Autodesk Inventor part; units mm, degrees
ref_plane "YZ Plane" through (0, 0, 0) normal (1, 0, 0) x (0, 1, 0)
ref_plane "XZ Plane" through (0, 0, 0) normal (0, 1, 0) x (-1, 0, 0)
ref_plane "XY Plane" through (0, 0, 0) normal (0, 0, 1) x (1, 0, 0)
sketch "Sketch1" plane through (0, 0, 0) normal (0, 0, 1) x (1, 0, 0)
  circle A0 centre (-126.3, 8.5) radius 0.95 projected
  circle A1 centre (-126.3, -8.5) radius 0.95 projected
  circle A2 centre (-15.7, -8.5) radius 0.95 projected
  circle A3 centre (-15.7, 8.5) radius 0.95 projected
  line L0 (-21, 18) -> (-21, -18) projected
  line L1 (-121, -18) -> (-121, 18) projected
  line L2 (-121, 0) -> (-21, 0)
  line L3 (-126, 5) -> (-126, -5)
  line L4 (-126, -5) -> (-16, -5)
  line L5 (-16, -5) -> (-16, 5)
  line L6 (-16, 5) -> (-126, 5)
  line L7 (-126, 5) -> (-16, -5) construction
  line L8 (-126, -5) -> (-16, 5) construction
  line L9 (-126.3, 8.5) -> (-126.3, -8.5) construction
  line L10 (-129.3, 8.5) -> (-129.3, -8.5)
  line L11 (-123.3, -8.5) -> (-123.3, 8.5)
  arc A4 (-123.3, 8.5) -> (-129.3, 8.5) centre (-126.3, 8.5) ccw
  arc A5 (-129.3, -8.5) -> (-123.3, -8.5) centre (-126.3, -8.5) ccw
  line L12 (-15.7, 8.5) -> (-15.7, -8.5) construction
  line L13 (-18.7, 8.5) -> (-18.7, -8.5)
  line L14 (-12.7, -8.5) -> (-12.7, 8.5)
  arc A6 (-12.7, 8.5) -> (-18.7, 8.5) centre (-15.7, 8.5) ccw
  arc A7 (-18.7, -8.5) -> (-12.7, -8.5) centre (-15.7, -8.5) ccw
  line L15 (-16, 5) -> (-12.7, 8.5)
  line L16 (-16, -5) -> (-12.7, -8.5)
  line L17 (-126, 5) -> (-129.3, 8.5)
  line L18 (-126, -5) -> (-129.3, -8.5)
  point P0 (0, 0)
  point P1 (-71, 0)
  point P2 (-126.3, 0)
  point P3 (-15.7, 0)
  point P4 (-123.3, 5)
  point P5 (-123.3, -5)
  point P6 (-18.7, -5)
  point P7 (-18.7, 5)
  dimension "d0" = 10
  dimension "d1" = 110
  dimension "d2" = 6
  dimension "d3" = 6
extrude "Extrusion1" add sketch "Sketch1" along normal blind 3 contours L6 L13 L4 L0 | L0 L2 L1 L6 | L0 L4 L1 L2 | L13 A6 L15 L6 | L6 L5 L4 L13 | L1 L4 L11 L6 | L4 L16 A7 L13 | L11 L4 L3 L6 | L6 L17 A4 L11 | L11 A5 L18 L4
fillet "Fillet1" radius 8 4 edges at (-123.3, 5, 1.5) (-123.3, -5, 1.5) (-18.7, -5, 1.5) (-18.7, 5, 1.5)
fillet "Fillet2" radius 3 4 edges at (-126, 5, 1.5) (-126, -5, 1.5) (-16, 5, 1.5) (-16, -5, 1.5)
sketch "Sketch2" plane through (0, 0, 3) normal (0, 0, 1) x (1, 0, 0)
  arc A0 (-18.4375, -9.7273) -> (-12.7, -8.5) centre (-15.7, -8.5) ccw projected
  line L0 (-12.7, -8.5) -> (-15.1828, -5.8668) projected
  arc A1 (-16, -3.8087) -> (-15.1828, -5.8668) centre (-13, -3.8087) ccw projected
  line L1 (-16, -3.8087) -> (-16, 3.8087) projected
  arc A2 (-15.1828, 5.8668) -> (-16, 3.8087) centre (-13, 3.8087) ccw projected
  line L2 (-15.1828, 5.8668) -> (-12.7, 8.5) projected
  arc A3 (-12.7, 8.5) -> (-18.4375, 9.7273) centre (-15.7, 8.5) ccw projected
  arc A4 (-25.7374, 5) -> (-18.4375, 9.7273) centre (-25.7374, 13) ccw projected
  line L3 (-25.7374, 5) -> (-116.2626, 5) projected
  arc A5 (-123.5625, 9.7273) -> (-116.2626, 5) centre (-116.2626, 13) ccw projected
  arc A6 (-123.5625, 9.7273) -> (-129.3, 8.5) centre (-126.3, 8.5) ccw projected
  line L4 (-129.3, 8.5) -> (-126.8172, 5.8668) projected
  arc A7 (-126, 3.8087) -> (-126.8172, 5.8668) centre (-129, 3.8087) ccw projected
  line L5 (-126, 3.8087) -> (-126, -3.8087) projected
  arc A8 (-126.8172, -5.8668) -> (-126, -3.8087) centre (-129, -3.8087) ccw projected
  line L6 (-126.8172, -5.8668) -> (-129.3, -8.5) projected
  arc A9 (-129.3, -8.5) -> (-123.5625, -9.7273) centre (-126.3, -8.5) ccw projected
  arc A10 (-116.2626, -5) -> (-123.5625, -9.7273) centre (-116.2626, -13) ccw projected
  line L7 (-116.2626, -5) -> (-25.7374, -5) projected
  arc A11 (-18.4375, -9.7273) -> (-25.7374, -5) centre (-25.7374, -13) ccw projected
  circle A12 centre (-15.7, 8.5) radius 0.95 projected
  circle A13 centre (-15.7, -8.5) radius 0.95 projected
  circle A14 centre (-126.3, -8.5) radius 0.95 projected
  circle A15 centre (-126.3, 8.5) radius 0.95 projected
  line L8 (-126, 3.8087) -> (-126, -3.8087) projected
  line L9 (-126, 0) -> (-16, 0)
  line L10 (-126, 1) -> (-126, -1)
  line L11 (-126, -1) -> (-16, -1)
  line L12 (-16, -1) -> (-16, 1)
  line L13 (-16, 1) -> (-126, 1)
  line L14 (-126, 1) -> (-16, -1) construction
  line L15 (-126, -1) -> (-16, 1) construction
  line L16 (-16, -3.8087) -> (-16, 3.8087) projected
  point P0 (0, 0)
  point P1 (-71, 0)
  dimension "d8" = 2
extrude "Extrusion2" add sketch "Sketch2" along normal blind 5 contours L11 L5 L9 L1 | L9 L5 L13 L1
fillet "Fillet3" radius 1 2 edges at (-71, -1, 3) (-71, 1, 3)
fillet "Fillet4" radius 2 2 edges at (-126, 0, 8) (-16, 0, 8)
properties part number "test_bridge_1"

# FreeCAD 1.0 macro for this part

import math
import FreeCAD as App
import Part
import Sketcher

V = App.Vector
Q = App.Units.Quantity


def edges_at(feature, points):
    """Names of the edges that pass closest to the given points."""
    edges = feature.Shape.Edges
    near = lambda p: min(range(len(edges)), key=lambda i: edges[i].distToShape(Part.Vertex(*p))[0])
    return sorted({f"Edge{near(p) + 1}" for p in points})


def add_polygon(sketch, points):
    """Adds a closed chain of lines whose ends are joined by coincident constraints."""
    first, n = sketch.GeometryCount, len(points)
    for a, b in zip(points, points[1:] + points[:1]):
        sketch.addGeometry(Part.LineSegment(App.Vector(*a, 0), App.Vector(*b, 0)), False)
    for i in range(n):
        sketch.addConstraint(Sketcher.Constraint("Coincident", first + i, 2, first + (i + 1) % n, 1))

doc = App.newDocument("Part")
params = doc.addObject("Spreadsheet::Sheet", "Params")
for row, (alias, value) in enumerate([
    ("sketch1_radius", "3 mm"),
    ("sketch1_height", "10 mm"),
    ("sketch1_diameter", "1.9 mm"),
    ("sketch1_width", "104.6 mm"),
    ("sketch1_height2", "3.5 mm"),
    ("pad1_length", "3 mm"),
    ("fillet_radius", "8 mm"),
    ("fillet2_radius", "3 mm"),
    ("sketch2_height", "2 mm"),
    ("sketch2_width", "110 mm"),
    ("pad2_length", "5 mm"),
    ("fillet3_radius", "1 mm"),
    ("fillet4_radius", "2 mm"),
], start=1):
    params.set(f"A{row}", alias)
    params.set(f"B{row}", "=" + value)
    params.setAlias(f"B{row}", alias)

body = doc.addObject("PartDesign::Body", "Body")

sketch1 = body.newObject("Sketcher::SketchObject", "Sketch")
sketch1.AttachmentSupport = (doc.getObject("XY_Plane"), [""])
sketch1.MapMode = "FlatFace"
sketch1.addGeometry(Part.LineSegment(V(-18.7, 5, 0), V(-123.3, 5, 0)), False)
sketch1.addGeometry(Part.LineSegment(V(-123.3, 5, 0), V(-123.3, 8.5, 0)), False)
sketch1.addGeometry(Part.ArcOfCircle(Part.Circle(V(-126.3, 8.5, 0), V(0, 0, 1), 3), math.radians(0), math.radians(180)), False)
sketch1.addGeometry(Part.LineSegment(V(-129.3, 8.5, 0), V(-126, 5, 0)), False)
sketch1.addGeometry(Part.LineSegment(V(-126, 5, 0), V(-126, -5, 0)), False)
sketch1.addGeometry(Part.LineSegment(V(-126, -5, 0), V(-129.3, -8.5, 0)), False)
sketch1.addGeometry(Part.ArcOfCircle(Part.Circle(V(-126.3, -8.5, 0), V(0, 0, 1), 3), math.radians(180), math.radians(360)), False)
sketch1.addGeometry(Part.LineSegment(V(-123.3, -8.5, 0), V(-123.3, -5, 0)), False)
sketch1.addGeometry(Part.LineSegment(V(-123.3, -5, 0), V(-18.7, -5, 0)), False)
sketch1.addGeometry(Part.LineSegment(V(-18.7, -5, 0), V(-18.7, -8.5, 0)), False)
sketch1.addGeometry(Part.ArcOfCircle(Part.Circle(V(-15.7, -8.5, 0), V(0, 0, 1), 3), math.radians(180), math.radians(360)), False)
sketch1.addGeometry(Part.LineSegment(V(-12.7, -8.5, 0), V(-16, -5, 0)), False)
sketch1.addGeometry(Part.LineSegment(V(-16, -5, 0), V(-16, 5, 0)), False)
sketch1.addGeometry(Part.LineSegment(V(-16, 5, 0), V(-12.7, 8.5, 0)), False)
sketch1.addGeometry(Part.ArcOfCircle(Part.Circle(V(-15.7, 8.5, 0), V(0, 0, 1), 3), math.radians(0), math.radians(180)), False)
sketch1.addGeometry(Part.LineSegment(V(-18.7, 8.5, 0), V(-18.7, 5, 0)), False)
sketch1.addGeometry(Part.Circle(V(-15.7, 8.5, 0), V(0, 0, 1), 0.9), False)
sketch1.addGeometry(Part.Circle(V(-15.7, -8.5, 0), V(0, 0, 1), 0.9), False)
sketch1.addGeometry(Part.Circle(V(-126.3, 8.5, 0), V(0, 0, 1), 0.9), False)
sketch1.addGeometry(Part.Circle(V(-126.3, -8.5, 0), V(0, 0, 1), 0.9), False)
sketch1.addConstraint(Sketcher.Constraint("Coincident", 0, 2, 1, 1))
sketch1.addConstraint(Sketcher.Constraint("Tangent", 1, 2, 2, 1))
sketch1.addConstraint(Sketcher.Constraint("Coincident", 2, 2, 3, 1))
sketch1.addConstraint(Sketcher.Constraint("Coincident", 3, 2, 4, 1))
sketch1.addConstraint(Sketcher.Constraint("Coincident", 4, 2, 5, 1))
sketch1.addConstraint(Sketcher.Constraint("Coincident", 5, 2, 6, 1))
sketch1.addConstraint(Sketcher.Constraint("Tangent", 6, 2, 7, 1))
sketch1.addConstraint(Sketcher.Constraint("Coincident", 7, 2, 8, 1))
sketch1.addConstraint(Sketcher.Constraint("Coincident", 8, 2, 9, 1))
sketch1.addConstraint(Sketcher.Constraint("Tangent", 9, 2, 10, 1))
sketch1.addConstraint(Sketcher.Constraint("Coincident", 10, 2, 11, 1))
sketch1.addConstraint(Sketcher.Constraint("Coincident", 11, 2, 12, 1))
sketch1.addConstraint(Sketcher.Constraint("Coincident", 12, 2, 13, 1))
sketch1.addConstraint(Sketcher.Constraint("Coincident", 13, 2, 14, 1))
sketch1.addConstraint(Sketcher.Constraint("Tangent", 14, 2, 15, 1))
sketch1.addConstraint(Sketcher.Constraint("Coincident", 15, 2, 0, 1))
sketch1.addConstraint(Sketcher.Constraint("Horizontal", 0))
sketch1.addConstraint(Sketcher.Constraint("Vertical", 1))
sketch1.addConstraint(Sketcher.Constraint("Vertical", 4))
sketch1.addConstraint(Sketcher.Constraint("Vertical", 7))
sketch1.addConstraint(Sketcher.Constraint("Horizontal", 8))
sketch1.addConstraint(Sketcher.Constraint("Vertical", 9))
sketch1.addConstraint(Sketcher.Constraint("Vertical", 12))
sketch1.addConstraint(Sketcher.Constraint("Vertical", 15))
sketch1.addConstraint(Sketcher.Constraint("Coincident", 16, 3, 14, 3))
sketch1.addConstraint(Sketcher.Constraint("Coincident", 17, 3, 10, 3))
sketch1.addConstraint(Sketcher.Constraint("Coincident", 18, 3, 2, 3))
sketch1.addConstraint(Sketcher.Constraint("Coincident", 19, 3, 6, 3))
sketch1.addConstraint(Sketcher.Constraint("Equal", 2, 6))
sketch1.addConstraint(Sketcher.Constraint("Equal", 6, 10))
sketch1.addConstraint(Sketcher.Constraint("Equal", 10, 14))
sketch1.addConstraint(Sketcher.Constraint("Equal", 16, 17))
sketch1.addConstraint(Sketcher.Constraint("Equal", 17, 18))
sketch1.addConstraint(Sketcher.Constraint("Equal", 18, 19))
sketch1.addConstraint(Sketcher.Constraint("Symmetric", 2, 3, 6, 3, -1))
sketch1.addConstraint(Sketcher.Constraint("Symmetric", 10, 3, 14, 3, -1))
sketch1.addConstraint(Sketcher.Constraint("Parallel", 3, 11))
sketch1.addConstraint(Sketcher.Constraint("Parallel", 5, 13))
sketch1.addConstraint(Sketcher.Constraint("Horizontal", 6, 3, 10, 3))
sketch1.addConstraint(Sketcher.Constraint("Horizontal", 1, 2, 2, 2))
sketch1.addConstraint(Sketcher.Constraint("Horizontal", 0, 2, 3, 2))
sketch1.addConstraint(Sketcher.Constraint("Horizontal", 19, 3, 5, 2))
sketch1.addConstraint(Sketcher.Constraint("Horizontal", 4, 2, 7, 2))
sketch1.addConstraint(Sketcher.Constraint("Horizontal", 9, 2, 10, 2))
sketch1.addConstraint(Sketcher.Constraint("Horizontal", 8, 2, 11, 2))
sketch1.addConstraint(Sketcher.Constraint("Horizontal", 3, 2, 12, 2))
sketch1.addConstraint(Sketcher.Constraint("Horizontal", 2, 2, 13, 2))
sketch1.addConstraint(Sketcher.Constraint("Radius", 2, Q("3 mm")))
sketch1.addConstraint(Sketcher.Constraint("DistanceY", 4, 2, 4, 1, Q("10 mm")))
sketch1.addConstraint(Sketcher.Constraint("Diameter", 16, Q("1.9 mm")))
sketch1.addConstraint(Sketcher.Constraint("DistanceX", 0, 2, 0, 1, Q("104.6 mm")))
sketch1.addConstraint(Sketcher.Constraint("DistanceY", 1, 1, 1, 2, Q("3.5 mm")))
sketch1.addConstraint(Sketcher.Constraint("DistanceX", 3, 2, -1, 1, Q("126 mm")))
sketch1.addConstraint(Sketcher.Constraint("DistanceX", 11, 2, -1, 1, Q("16 mm")))
sketch1.setExpression("Constraints[47]", "Params.sketch1_radius")
sketch1.setExpression("Constraints[48]", "Params.sketch1_height")
sketch1.setExpression("Constraints[49]", "Params.sketch1_diameter")
sketch1.setExpression("Constraints[50]", "Params.sketch1_width")
sketch1.setExpression("Constraints[51]", "Params.sketch1_height2")
pad1 = body.newObject("PartDesign::Pad", "Pad")
pad1.Profile = sketch1
pad1.setExpression("Length", "Params.pad1_length")
doc.recompute()

fillet = body.newObject("PartDesign::Fillet", "Fillet")
fillet.Base = (pad1, edges_at(pad1, [
    (-123.3, 5, 1.5),
    (-123.3, -5, 1.5),
    (-18.7, -5, 1.5),
    (-18.7, 5, 1.5),
]))
fillet.setExpression("Radius", "Params.fillet_radius")
doc.recompute()

fillet2 = body.newObject("PartDesign::Fillet", "Fillet001")
fillet2.Base = (fillet, edges_at(fillet, [
    (-126, 5, 1.5),
    (-126, -5, 1.5),
    (-16, 5, 1.5),
    (-16, -5, 1.5),
]))
fillet2.setExpression("Radius", "Params.fillet2_radius")

sketch2 = body.newObject("Sketcher::SketchObject", "Sketch001")
sketch2.AttachmentSupport = (doc.getObject("XY_Plane"), [""])
sketch2.MapMode = "FlatFace"
sketch2.AttachmentOffset = App.Placement(V(0, 0, 3), App.Rotation())
add_polygon(sketch2, [(-126, -1), (-16, -1), (-16, 1), (-126, 1)])
sketch2.addConstraint(Sketcher.Constraint("Horizontal", 0))
sketch2.addConstraint(Sketcher.Constraint("Vertical", 1))
sketch2.addConstraint(Sketcher.Constraint("Horizontal", 2))
sketch2.addConstraint(Sketcher.Constraint("Vertical", 3))
sketch2.addConstraint(Sketcher.Constraint("DistanceY", 1, 1, 1, 2, Q("2 mm")))
sketch2.addConstraint(Sketcher.Constraint("DistanceX", 0, 1, 0, 2, Q("110 mm")))
sketch2.addConstraint(Sketcher.Constraint("DistanceX", 0, 2, -1, 1, Q("16 mm")))
sketch2.addConstraint(Sketcher.Constraint("DistanceY", 0, 2, -1, 1, Q("1 mm")))
sketch2.setExpression("Constraints[8]", "Params.sketch2_height")
sketch2.setExpression("Constraints[9]", "Params.sketch2_width")
pad2 = body.newObject("PartDesign::Pad", "Pad001")
pad2.Profile = sketch2
pad2.setExpression("Length", "Params.pad2_length")
doc.recompute()

fillet3 = body.newObject("PartDesign::Fillet", "Fillet002")
fillet3.Base = (pad2, edges_at(pad2, [(-71, -1, 3), (-71, 1, 3)]))
fillet3.setExpression("Radius", "Params.fillet3_radius")
doc.recompute()

fillet4 = body.newObject("PartDesign::Fillet", "Fillet003")
fillet4.Base = (fillet3, edges_at(fillet3, [(-126, 0, 8), (-16, 0, 8)]))
fillet4.setExpression("Radius", "Params.fillet4_radius")

doc.recompute()
